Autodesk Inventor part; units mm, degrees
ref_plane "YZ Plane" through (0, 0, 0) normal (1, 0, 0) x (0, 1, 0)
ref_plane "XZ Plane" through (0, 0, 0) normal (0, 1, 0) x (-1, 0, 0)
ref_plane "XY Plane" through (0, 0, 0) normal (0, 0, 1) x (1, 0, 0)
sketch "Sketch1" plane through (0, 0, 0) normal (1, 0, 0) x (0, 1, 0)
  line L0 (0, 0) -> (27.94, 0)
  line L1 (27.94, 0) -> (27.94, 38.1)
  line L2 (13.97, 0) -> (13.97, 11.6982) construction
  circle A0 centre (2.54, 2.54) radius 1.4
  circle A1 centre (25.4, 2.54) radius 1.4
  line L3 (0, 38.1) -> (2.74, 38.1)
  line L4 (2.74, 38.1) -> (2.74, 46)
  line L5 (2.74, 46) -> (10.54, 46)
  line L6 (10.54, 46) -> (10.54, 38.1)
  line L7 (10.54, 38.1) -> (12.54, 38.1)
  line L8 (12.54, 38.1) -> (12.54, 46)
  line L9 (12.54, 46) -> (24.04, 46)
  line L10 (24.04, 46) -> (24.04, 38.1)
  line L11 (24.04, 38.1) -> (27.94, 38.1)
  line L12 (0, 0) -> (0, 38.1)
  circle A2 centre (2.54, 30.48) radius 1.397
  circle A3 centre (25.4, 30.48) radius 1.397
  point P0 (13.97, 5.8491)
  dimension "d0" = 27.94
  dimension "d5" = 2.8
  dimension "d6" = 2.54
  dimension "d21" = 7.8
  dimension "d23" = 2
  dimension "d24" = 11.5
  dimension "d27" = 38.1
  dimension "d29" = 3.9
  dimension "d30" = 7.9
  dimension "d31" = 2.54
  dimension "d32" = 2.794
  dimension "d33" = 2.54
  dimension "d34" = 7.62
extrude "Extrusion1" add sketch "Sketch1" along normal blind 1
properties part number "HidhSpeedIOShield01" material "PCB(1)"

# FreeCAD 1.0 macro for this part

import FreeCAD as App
import Part
import Sketcher

V = App.Vector


def add_polygon(sketch, points):
    """Adds a closed chain of lines whose ends are joined by coincident constraints."""
    first, n = sketch.GeometryCount, len(points)
    for a, b in zip(points, points[1:] + points[:1]):
        sketch.addGeometry(Part.LineSegment(App.Vector(*a, 0), App.Vector(*b, 0)), False)
    for i in range(n):
        sketch.addConstraint(Sketcher.Constraint("Coincident", first + i, 2, first + (i + 1) % n, 1))

doc = App.newDocument("Part")
body = doc.addObject("PartDesign::Body", "Body")

# Sketch on YZ plane
sketch1 = body.newObject("Sketcher::SketchObject", "Sketch")
sketch1.AttachmentSupport = (doc.getObject("YZ_Plane"), [""])
sketch1.MapMode = "FlatFace"
add_polygon(sketch1, [(0, 38.1), (0, 0), (27.9, 0), (27.9, 38.1), (24, 38.1), (24, 46), (12.5, 46), (12.5, 38.1), (10.5, 38.1), (10.5, 46), (2.7, 46), (2.7, 38.1)])  # lines 0-11
sketch1.addGeometry(Part.Circle(V(2.5, 2.5, 0), V(0, 0, 1), 1.4), False)  # 12
sketch1.addGeometry(Part.Circle(V(25.4, 2.5, 0), V(0, 0, 1), 1.4), False)  # 13
sketch1.addGeometry(Part.Circle(V(2.5, 30.5, 0), V(0, 0, 1), 1.4), False)  # 14
sketch1.addGeometry(Part.Circle(V(25.4, 30.5, 0), V(0, 0, 1), 1.4), False)  # 15
sketch1.addConstraint(Sketcher.Constraint("Vertical", 0))
sketch1.addConstraint(Sketcher.Constraint("Horizontal", 1))
sketch1.addConstraint(Sketcher.Constraint("Vertical", 2))
sketch1.addConstraint(Sketcher.Constraint("Horizontal", 3))
sketch1.addConstraint(Sketcher.Constraint("Vertical", 4))
sketch1.addConstraint(Sketcher.Constraint("Horizontal", 5))
sketch1.addConstraint(Sketcher.Constraint("Vertical", 6))
sketch1.addConstraint(Sketcher.Constraint("Horizontal", 7))
sketch1.addConstraint(Sketcher.Constraint("Vertical", 8))
sketch1.addConstraint(Sketcher.Constraint("Horizontal", 9))
sketch1.addConstraint(Sketcher.Constraint("Vertical", 10))
sketch1.addConstraint(Sketcher.Constraint("Horizontal", 11))
sketch1.addConstraint(Sketcher.Constraint("Coincident", 0, 2, -1, 1))
sketch1.addConstraint(Sketcher.Constraint("Equal", 12, 13))
sketch1.addConstraint(Sketcher.Constraint("Equal", 14, 15))
sketch1.addConstraint(Sketcher.Constraint("Horizontal", 12, 3, 13, 3))
sketch1.addConstraint(Sketcher.Constraint("Horizontal", 14, 3, 15, 3))
sketch1.addConstraint(Sketcher.Constraint("Horizontal", 3, 2, 6, 2))
sketch1.addConstraint(Sketcher.Constraint("Horizontal", 5, 2, 8, 2))
sketch1.addConstraint(Sketcher.Constraint("Horizontal", 7, 2, 10, 2))
sketch1.addConstraint(Sketcher.Constraint("Vertical", 12, 3, 14, 3))
sketch1.addConstraint(Sketcher.Constraint("Vertical", 13, 3, 15, 3))
sketch1.addConstraint(Sketcher.Constraint("Diameter", 12, 2.8))
sketch1.addConstraint(Sketcher.Constraint("DistanceX", 7, 2, 7, 1, 2.0))
sketch1.addConstraint(Sketcher.Constraint("Diameter", 14, 2.794))
sketch1.addConstraint(Sketcher.Constraint("DistanceX", 3, 2, 3, 1, 3.9))
sketch1.addConstraint(Sketcher.Constraint("DistanceX", 5, 2, 5, 1, 11.5))
sketch1.addConstraint(Sketcher.Constraint("DistanceX", 9, 2, 9, 1, 7.8))
sketch1.addConstraint(Sketcher.Constraint("DistanceY", 0, 2, 0, 1, 38.1))
sketch1.addConstraint(Sketcher.Constraint("DistanceY", 4, 1, 4, 2, 7.9))
sketch1.addConstraint(Sketcher.Constraint("DistanceX", 1, 1, 1, 2, 27.94))
sketch1.addConstraint(Sketcher.Constraint("DistanceX", -1, 1, 12, 3, 2.54))
sketch1.addConstraint(Sketcher.Constraint("DistanceY", -1, 1, 12, 3, 2.54))
sketch1.addConstraint(Sketcher.Constraint("DistanceY", 12, 3, 14, 3, 27.94))
sketch1.addConstraint(Sketcher.Constraint("DistanceX", 13, 3, 1, 2, 2.54))
pad1 = body.newObject("PartDesign::Pad", "Pad")
pad1.Profile = sketch1
pad1.Length = 1

doc.recompute()
